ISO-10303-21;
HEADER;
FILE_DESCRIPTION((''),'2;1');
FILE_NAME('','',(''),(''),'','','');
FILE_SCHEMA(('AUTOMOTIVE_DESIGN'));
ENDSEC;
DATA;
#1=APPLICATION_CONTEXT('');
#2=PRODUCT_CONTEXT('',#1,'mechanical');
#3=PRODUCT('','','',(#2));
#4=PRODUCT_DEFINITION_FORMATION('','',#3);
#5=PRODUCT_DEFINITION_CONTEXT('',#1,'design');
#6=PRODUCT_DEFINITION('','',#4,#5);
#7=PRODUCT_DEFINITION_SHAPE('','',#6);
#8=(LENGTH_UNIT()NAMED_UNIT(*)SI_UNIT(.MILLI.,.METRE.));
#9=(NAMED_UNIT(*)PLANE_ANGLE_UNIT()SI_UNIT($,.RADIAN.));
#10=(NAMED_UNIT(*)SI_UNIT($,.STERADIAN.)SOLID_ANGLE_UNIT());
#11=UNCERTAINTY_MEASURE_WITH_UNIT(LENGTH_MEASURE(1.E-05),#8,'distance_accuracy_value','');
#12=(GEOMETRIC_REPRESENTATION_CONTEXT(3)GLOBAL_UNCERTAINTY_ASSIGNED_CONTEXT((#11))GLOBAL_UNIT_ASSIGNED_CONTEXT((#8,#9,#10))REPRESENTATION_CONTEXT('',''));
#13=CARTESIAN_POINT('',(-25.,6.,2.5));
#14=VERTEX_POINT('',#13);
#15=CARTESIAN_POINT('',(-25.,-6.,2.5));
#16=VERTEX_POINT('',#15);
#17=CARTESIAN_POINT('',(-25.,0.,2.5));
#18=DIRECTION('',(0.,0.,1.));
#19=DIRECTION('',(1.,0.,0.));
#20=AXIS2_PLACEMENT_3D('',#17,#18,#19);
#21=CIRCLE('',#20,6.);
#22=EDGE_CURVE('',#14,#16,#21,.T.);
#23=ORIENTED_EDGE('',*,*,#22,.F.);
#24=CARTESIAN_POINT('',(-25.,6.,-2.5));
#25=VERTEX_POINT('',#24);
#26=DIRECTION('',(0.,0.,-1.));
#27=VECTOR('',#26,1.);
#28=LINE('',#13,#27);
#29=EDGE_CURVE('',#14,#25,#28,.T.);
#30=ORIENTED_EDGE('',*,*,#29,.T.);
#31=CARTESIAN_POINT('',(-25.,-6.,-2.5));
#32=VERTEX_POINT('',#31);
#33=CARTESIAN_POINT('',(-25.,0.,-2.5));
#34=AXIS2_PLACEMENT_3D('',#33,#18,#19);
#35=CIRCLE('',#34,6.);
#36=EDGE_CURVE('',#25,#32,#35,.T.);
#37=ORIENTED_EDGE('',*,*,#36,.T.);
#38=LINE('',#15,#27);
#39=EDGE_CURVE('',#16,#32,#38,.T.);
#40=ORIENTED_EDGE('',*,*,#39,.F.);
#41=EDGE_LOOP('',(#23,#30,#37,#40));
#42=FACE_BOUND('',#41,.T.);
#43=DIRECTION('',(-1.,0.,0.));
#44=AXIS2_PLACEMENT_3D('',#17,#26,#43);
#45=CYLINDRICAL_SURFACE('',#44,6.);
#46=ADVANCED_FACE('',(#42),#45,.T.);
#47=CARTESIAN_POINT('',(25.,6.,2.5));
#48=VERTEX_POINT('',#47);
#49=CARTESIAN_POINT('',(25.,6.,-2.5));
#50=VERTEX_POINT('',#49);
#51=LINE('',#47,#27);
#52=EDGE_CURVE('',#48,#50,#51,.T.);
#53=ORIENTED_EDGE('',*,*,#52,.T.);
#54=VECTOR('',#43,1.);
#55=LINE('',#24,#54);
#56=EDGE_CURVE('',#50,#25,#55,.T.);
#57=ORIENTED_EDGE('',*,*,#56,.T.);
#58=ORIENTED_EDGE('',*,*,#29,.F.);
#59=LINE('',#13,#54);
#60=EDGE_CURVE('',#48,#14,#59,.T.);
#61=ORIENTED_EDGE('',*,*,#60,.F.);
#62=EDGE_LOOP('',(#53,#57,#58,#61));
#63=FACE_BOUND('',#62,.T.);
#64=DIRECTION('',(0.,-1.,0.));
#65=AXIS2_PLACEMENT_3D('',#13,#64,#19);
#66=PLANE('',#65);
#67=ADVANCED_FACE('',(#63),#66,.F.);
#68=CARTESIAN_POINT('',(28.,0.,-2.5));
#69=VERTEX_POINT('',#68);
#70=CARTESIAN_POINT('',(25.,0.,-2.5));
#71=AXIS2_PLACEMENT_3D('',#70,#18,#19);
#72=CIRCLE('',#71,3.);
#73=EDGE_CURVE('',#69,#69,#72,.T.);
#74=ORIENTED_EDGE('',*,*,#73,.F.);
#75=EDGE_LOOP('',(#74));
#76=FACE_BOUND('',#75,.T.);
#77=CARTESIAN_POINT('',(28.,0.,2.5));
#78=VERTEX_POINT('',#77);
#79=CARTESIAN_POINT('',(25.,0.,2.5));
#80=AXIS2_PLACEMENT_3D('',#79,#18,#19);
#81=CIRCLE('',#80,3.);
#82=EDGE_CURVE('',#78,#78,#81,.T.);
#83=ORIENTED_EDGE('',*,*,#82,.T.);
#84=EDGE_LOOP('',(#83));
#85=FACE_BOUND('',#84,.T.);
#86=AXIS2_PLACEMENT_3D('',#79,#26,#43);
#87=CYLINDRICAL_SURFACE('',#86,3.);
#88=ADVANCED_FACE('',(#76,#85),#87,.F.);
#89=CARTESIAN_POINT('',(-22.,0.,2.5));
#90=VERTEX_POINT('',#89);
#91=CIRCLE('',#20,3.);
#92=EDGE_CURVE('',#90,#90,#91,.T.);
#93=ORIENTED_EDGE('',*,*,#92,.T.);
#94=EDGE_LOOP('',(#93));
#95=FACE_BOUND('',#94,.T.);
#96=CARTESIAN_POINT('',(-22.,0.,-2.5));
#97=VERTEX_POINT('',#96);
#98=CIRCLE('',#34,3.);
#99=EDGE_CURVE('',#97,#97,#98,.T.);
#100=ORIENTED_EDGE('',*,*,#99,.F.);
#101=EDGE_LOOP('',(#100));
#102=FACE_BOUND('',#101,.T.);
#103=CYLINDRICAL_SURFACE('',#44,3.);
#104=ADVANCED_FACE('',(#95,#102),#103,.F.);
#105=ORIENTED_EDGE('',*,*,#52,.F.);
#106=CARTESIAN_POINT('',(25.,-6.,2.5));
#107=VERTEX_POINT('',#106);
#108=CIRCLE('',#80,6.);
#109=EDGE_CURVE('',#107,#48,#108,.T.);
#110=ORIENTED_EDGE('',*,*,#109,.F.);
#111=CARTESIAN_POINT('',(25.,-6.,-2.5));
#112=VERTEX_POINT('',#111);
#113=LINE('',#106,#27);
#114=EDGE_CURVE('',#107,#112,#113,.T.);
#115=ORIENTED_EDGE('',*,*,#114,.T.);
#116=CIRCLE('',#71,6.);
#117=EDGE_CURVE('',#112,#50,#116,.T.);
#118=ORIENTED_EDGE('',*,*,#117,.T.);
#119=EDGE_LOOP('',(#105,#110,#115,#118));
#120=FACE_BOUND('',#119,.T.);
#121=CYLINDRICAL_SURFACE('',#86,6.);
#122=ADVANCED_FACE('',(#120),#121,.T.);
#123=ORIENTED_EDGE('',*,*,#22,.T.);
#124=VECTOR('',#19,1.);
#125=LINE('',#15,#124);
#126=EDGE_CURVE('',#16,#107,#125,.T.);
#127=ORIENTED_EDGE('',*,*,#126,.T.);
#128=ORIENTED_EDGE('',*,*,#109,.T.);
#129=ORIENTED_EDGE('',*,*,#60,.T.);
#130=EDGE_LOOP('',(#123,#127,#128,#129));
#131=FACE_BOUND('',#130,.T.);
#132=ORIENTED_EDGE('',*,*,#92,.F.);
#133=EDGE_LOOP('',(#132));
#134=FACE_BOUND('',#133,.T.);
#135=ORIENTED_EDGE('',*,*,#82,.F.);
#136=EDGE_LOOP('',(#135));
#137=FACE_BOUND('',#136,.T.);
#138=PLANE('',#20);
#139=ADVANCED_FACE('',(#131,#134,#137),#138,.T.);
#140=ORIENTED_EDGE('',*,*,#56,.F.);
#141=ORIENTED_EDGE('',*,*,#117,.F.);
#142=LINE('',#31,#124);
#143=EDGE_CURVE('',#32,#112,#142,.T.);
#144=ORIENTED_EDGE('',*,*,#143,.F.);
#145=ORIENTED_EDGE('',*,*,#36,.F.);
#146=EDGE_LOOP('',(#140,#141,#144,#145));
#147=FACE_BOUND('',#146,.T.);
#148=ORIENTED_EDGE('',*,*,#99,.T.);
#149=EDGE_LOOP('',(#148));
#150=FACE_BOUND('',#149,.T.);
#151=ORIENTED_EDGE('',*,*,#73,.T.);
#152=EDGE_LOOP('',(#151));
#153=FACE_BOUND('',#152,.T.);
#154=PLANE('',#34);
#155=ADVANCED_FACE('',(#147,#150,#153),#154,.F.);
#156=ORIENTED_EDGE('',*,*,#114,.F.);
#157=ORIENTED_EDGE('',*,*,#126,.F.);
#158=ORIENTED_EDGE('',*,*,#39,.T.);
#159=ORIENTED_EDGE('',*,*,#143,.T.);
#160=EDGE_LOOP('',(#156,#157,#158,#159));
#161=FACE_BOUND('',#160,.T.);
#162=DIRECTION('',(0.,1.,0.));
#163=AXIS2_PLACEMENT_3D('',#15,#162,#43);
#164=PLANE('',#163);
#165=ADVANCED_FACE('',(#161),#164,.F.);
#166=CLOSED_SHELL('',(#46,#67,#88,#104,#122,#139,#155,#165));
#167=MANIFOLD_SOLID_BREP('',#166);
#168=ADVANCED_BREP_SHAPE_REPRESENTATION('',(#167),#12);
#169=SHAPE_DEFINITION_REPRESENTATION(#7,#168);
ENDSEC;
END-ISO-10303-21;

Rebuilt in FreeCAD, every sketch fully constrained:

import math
import FreeCAD as App
import Part
import Sketcher
from FreeCAD import Vector

doc = App.newDocument("Part")
body = doc.addObject("PartDesign::Body", "Body")

sketch1 = body.newObject("Sketcher::SketchObject", "Sketch")
sketch1.AttachmentSupport = (doc.getObject("XY_Plane"), [""])
sketch1.MapMode = "FlatFace"
sketch1.addGeometry([
    Part.LineSegment(Vector(25, 6, 0), Vector(-25, 6, 0)),
    Part.ArcOfCircle(Part.Circle(Vector(-25, 0, 0), Vector(0, 0, 1), 6), math.radians(90), math.radians(270)),
    Part.LineSegment(Vector(-25, -6, 0), Vector(25, -6, 0)),
    Part.ArcOfCircle(Part.Circle(Vector(25, 0, 0), Vector(0, 0, 1), 6), math.radians(-90), math.radians(90)),
    Part.Circle(Vector(25, 0, 0), Vector(0, 0, 1), 3),
    Part.Circle(Vector(-25, 0, 0), Vector(0, 0, 1), 3),
], False)
sketch1.addConstraint([
    Sketcher.Constraint("Tangent", 0, 2, 1, 1),
    Sketcher.Constraint("Tangent", 1, 2, 2, 1),
    Sketcher.Constraint("Tangent", 2, 2, 3, 1),
    Sketcher.Constraint("Tangent", 3, 2, 0, 1),
    Sketcher.Constraint("Horizontal", 0),
    Sketcher.Constraint("Horizontal", 2),
    Sketcher.Constraint("Coincident", 4, 3, 3, 3),
    Sketcher.Constraint("Coincident", 5, 3, 1, 3),
    Sketcher.Constraint("Equal", 4, 5),
    Sketcher.Constraint("Symmetric", 1, 3, 3, 3, -1, 1),
    Sketcher.Constraint("Diameter", 4, 6.0),
    Sketcher.Constraint("Radius", 1, 6.0),
    Sketcher.Constraint("DistanceX", 0, 2, 0, 1, 50.0),
])
pad1 = body.newObject("PartDesign::Pad", "Pad")
pad1.Profile = sketch1
pad1.Length = 5
pad1.Midplane = True

doc.recompute()
